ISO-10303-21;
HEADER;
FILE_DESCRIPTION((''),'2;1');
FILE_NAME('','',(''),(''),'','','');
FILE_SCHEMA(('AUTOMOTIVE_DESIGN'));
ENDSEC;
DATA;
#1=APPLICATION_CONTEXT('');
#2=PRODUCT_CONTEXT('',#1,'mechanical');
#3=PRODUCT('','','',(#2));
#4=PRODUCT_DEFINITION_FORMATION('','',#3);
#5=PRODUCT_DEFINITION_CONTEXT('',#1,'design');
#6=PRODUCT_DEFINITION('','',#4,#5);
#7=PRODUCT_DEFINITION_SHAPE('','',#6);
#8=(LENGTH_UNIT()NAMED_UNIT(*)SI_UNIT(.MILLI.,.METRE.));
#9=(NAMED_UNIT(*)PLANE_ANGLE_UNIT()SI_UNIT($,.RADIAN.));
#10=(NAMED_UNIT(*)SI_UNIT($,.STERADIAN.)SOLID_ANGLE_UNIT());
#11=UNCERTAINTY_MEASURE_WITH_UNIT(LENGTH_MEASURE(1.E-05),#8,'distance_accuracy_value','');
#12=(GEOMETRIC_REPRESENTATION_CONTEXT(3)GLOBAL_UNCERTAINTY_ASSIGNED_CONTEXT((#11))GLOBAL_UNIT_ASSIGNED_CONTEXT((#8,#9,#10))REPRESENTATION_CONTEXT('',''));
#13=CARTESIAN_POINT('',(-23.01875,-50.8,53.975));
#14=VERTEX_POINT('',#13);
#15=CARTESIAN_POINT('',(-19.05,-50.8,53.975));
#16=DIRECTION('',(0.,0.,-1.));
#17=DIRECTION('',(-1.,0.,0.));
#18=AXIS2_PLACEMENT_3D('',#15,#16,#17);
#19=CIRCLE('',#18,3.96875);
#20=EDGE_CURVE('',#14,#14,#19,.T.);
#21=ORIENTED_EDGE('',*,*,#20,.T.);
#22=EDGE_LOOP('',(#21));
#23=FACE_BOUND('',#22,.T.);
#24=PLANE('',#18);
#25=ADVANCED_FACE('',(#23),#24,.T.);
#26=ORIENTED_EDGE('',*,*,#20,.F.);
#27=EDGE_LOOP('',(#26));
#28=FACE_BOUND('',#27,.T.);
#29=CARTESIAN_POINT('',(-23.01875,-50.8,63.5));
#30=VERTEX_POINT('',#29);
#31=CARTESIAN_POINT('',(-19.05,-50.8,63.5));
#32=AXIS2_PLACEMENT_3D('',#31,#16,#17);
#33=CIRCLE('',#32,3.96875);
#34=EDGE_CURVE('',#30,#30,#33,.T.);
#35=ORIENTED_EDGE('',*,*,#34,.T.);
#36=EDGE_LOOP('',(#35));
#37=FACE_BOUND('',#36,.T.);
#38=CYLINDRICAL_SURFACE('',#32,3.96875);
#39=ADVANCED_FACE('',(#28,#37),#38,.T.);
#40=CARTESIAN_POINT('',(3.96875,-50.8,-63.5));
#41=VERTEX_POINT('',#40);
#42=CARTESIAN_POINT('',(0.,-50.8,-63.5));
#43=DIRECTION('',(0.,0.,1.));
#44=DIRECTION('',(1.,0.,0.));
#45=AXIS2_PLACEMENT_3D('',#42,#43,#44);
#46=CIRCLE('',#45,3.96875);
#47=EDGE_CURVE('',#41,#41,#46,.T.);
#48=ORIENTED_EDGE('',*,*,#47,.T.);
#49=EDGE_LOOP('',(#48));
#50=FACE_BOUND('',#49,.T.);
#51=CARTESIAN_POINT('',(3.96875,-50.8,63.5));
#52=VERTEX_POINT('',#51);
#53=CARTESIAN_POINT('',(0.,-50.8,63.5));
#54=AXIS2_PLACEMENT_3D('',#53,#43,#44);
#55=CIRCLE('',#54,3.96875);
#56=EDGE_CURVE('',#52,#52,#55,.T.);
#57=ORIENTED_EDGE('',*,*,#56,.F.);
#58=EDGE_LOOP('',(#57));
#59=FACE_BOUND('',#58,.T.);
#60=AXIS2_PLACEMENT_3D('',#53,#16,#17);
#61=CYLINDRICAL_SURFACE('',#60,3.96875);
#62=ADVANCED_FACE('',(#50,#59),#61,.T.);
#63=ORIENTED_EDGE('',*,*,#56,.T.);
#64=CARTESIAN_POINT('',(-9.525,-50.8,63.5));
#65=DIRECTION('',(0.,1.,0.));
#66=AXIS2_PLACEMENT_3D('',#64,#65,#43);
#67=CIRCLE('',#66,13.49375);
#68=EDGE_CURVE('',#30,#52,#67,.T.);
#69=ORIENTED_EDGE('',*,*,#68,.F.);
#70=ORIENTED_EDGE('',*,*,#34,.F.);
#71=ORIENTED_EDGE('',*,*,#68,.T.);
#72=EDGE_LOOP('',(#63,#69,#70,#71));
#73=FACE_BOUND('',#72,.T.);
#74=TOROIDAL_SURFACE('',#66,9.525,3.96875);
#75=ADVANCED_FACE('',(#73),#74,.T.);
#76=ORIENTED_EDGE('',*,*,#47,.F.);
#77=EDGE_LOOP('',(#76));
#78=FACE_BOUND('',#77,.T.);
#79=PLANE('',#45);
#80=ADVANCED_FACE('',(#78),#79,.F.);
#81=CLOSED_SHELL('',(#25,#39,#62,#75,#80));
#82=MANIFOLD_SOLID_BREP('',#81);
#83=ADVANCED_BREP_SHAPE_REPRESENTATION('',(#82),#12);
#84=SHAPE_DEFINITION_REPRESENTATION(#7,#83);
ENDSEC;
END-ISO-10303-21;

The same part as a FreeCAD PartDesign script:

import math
import FreeCAD as App
import Part
import Sketcher
from FreeCAD import Vector
Q = App.Units.Quantity

doc = App.newDocument("Part")
body = doc.addObject("PartDesign::Body", "Body")

sketch1 = body.newObject("Sketcher::SketchObject", "Sketch")
sketch1.AttachmentSupport = (doc.getObject("XY_Plane"), [""])
sketch1.MapMode = "FlatFace"
sketch1.addGeometry(Part.Circle(Vector(0, -50.8, 0), Vector(0, 0, 1), 4), False)
sketch1.addConstraint(Sketcher.Constraint("PointOnObject", 0, 3, -2))
sketch1.addConstraint(Sketcher.Constraint("Diameter", 0, Q("0.3125 in")))
sketch1.addConstraint(Sketcher.Constraint("DistanceY", 0, 3, -1, 1, Q("2 in")))
pad1 = body.newObject("PartDesign::Pad", "Pad")
pad1.Profile = sketch1
pad1.Length = Q("5 in")
pad1.Midplane = True

sketch2 = body.newObject("Sketcher::SketchObject", "Sketch001")
sketch2.AttachmentSupport = (doc.getObject("XY_Plane"), [""])
sketch2.MapMode = "FlatFace"
sketch2.AttachmentOffset = App.Placement(Vector(0, 0, 2.5 * 25.4), App.Rotation())
sketch2.addGeometry(Part.Circle(Vector(0, -50.8, 0), Vector(0, 0, 1), 4), False)
sketch2.addConstraint(Sketcher.Constraint("PointOnObject", 0, 3, -2))
sketch2.addConstraint(Sketcher.Constraint("Diameter", 0, Q("0.3125 in")))
sketch2.addConstraint(Sketcher.Constraint("DistanceY", 0, 3, -1, 1, Q("2 in")))

sketch3 = body.newObject("Sketcher::SketchObject", "Sketch002")
sketch3.AttachmentSupport = (doc.getObject("XZ_Plane"), [""])
sketch3.MapMode = "FlatFace"
sketch3.addGeometry(Part.LineSegment(Vector(-19, 54, 0), Vector(-19, 64, 0)), False)
sketch3.addGeometry(Part.ArcOfCircle(Part.Circle(Vector(-10, 64, 0), Vector(0, 0, 1), 10), math.radians(0), math.radians(180)), False)
sketch3.addConstraint(Sketcher.Constraint("Tangent", 0, 2, 1, 2))
sketch3.addConstraint(Sketcher.Constraint("Vertical", 0))
sketch3.addConstraint(Sketcher.Constraint("PointOnObject", 1, 1, -2))
sketch3.addConstraint(Sketcher.Constraint("Horizontal", 0, 2, 1, 1))
sketch3.addConstraint(Sketcher.Constraint("Radius", 1, Q("0.375 in")))
sketch3.addConstraint(Sketcher.Constraint("DistanceY", -1, 1, 1, 3, Q("2.5 in")))
sketch3.addConstraint(Sketcher.Constraint("DistanceY", 0, 1, 0, 2, Q("0.375 in")))
doc.recompute()

additivepipe = body.newObject("PartDesign::AdditivePipe", "AdditivePipe")
additivepipe.Profile = sketch2
additivepipe.Spine = (sketch3, ["Edge1", "Edge2"])

doc.recompute()
